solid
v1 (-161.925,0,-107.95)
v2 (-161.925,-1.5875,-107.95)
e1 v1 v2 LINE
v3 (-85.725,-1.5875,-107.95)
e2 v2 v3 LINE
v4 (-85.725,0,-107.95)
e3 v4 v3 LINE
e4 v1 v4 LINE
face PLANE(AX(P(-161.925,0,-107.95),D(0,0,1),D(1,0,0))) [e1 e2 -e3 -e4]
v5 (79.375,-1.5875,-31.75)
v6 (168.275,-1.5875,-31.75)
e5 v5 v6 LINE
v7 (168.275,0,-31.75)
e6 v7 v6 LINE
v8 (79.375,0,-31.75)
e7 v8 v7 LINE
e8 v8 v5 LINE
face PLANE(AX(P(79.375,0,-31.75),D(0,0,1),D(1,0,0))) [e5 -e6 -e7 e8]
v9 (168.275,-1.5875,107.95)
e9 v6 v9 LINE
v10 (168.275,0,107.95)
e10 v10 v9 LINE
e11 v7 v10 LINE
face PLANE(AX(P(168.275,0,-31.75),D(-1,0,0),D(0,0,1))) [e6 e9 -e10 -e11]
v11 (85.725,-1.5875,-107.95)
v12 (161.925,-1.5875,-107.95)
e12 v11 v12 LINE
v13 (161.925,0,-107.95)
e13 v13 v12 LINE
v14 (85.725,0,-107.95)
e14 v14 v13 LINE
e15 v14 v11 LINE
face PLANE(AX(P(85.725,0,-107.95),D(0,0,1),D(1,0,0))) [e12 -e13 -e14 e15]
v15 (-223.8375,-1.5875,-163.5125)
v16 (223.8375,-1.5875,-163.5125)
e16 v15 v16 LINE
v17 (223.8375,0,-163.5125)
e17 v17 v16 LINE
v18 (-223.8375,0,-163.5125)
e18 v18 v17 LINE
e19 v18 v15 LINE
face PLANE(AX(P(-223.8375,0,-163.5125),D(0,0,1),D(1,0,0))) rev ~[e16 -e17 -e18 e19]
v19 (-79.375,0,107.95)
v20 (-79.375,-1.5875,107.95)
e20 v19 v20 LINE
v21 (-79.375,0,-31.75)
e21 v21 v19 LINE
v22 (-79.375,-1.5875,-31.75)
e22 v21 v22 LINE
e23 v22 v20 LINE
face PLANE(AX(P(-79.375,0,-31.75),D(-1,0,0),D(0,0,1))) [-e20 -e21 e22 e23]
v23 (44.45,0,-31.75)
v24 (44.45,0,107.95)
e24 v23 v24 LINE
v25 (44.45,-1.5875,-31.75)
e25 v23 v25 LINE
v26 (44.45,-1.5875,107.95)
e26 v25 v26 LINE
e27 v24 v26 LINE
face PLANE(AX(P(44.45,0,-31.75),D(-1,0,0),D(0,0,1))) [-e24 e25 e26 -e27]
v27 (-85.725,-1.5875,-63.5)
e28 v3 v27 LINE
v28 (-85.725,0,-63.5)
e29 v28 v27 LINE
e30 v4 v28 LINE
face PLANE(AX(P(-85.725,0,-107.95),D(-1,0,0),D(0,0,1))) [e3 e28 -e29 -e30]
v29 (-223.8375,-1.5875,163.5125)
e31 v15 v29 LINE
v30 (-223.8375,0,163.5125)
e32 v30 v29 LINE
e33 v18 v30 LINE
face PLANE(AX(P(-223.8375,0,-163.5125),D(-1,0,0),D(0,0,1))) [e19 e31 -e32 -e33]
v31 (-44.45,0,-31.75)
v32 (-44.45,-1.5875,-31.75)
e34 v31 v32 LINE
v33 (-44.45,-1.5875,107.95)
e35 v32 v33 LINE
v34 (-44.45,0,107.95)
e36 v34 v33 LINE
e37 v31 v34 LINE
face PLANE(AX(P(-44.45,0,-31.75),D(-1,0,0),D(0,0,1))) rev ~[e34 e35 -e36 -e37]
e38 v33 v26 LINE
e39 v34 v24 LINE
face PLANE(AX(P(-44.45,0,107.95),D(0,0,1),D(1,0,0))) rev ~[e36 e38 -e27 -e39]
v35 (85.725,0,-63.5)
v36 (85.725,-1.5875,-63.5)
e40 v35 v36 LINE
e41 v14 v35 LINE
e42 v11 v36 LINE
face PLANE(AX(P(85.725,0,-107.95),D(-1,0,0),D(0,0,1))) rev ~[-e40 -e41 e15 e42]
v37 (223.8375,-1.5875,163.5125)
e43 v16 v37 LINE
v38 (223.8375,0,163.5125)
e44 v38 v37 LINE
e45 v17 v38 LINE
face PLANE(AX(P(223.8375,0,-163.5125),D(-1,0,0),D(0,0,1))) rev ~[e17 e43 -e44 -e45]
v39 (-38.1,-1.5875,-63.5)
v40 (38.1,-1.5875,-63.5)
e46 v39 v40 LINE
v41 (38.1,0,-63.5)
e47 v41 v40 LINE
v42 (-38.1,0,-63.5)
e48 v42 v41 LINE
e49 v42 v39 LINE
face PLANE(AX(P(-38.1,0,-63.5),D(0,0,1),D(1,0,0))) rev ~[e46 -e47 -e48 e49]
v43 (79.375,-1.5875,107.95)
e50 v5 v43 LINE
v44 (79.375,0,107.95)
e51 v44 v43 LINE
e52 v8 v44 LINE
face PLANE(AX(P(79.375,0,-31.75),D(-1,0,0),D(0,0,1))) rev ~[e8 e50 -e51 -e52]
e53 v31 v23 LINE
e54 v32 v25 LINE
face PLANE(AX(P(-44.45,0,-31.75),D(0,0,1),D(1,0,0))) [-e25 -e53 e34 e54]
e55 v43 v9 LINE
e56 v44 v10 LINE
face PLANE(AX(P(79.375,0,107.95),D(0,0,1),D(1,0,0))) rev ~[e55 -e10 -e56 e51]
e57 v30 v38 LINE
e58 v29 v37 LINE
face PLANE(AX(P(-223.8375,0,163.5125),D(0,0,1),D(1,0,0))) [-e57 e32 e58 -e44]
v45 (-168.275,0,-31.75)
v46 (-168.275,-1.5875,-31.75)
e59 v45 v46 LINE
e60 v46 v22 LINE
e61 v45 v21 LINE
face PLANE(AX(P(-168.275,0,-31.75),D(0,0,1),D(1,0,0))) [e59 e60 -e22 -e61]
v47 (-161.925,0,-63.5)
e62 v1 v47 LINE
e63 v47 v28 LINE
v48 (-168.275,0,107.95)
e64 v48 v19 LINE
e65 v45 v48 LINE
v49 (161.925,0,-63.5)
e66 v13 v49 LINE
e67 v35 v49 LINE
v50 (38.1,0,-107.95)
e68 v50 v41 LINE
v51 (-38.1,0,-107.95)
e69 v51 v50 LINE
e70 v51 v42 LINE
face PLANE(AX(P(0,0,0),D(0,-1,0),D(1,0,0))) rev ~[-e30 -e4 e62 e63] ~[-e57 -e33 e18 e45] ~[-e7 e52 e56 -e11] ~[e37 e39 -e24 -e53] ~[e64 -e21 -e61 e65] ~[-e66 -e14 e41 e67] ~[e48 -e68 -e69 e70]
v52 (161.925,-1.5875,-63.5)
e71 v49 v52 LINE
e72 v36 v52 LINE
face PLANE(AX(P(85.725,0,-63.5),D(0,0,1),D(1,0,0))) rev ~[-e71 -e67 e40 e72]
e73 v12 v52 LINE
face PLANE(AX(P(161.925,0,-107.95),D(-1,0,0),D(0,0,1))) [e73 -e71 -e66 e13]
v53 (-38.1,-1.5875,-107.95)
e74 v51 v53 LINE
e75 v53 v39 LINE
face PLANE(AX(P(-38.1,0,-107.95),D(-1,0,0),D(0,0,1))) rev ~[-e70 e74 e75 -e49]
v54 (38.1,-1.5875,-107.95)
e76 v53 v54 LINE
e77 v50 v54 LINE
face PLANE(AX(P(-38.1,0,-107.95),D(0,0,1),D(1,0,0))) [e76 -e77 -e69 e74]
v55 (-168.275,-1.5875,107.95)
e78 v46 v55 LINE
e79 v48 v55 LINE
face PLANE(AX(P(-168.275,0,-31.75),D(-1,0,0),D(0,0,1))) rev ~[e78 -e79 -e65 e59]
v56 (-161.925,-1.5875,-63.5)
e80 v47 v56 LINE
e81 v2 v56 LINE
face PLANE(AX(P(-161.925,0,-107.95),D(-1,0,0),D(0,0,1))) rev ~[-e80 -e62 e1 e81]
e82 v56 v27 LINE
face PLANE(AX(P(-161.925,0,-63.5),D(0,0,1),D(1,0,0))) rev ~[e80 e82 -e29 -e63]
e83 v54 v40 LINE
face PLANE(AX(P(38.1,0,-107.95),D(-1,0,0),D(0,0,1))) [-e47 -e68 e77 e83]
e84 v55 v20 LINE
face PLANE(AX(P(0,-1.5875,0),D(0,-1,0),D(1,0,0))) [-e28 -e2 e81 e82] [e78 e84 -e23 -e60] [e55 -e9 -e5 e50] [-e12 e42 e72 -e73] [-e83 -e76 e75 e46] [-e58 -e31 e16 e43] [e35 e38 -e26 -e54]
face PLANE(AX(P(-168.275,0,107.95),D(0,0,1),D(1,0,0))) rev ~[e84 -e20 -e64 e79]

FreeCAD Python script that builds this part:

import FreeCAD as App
import Part
import Sketcher
Q = App.Units.Quantity

doc = App.newDocument("Part")
body = doc.addObject("PartDesign::Body", "Body")

# Sketch on XZ plane
sketch1 = body.newObject("Sketcher::SketchObject", "Sketch")
sketch1.AttachmentSupport = (doc.getObject("XZ_Plane"), [""])
sketch1.MapMode = "FlatFace"
sketch1.addGeometry(Part.LineSegment(App.Vector(-223.8375, 163.5125, 0), App.Vector(-223.8375, -163.5125, 0)), False)
sketch1.addGeometry(Part.LineSegment(App.Vector(-223.8375, -163.5125, 0), App.Vector(223.8375, -163.5125, 0)), False)
sketch1.addGeometry(Part.LineSegment(App.Vector(223.8375, -163.5125, 0), App.Vector(223.8375, 163.5125, 0)), False)
sketch1.addGeometry(Part.LineSegment(App.Vector(223.8375, 163.5125, 0), App.Vector(-223.8375, 163.5125, 0)), False)
sketch1.addGeometry(Part.LineSegment(App.Vector(-85.725, -107.95, 0), App.Vector(-161.925, -107.95, 0)), False)
sketch1.addGeometry(Part.LineSegment(App.Vector(-161.925, -107.95, 0), App.Vector(-161.925, -63.5, 0)), False)
sketch1.addGeometry(Part.LineSegment(App.Vector(-161.925, -63.5, 0), App.Vector(-85.725, -63.5, 0)), False)
sketch1.addGeometry(Part.LineSegment(App.Vector(-85.725, -63.5, 0), App.Vector(-85.725, -107.95, 0)), False)
sketch1.addGeometry(Part.LineSegment(App.Vector(38.1, -107.95, 0), App.Vector(-38.1, -107.95, 0)), False)
sketch1.addGeometry(Part.LineSegment(App.Vector(-38.1, -107.95, 0), App.Vector(-38.1, -63.5, 0)), False)
sketch1.addGeometry(Part.LineSegment(App.Vector(-38.1, -63.5, 0), App.Vector(38.1, -63.5, 0)), False)
sketch1.addGeometry(Part.LineSegment(App.Vector(38.1, -63.5, 0), App.Vector(38.1, -107.95, 0)), False)
sketch1.addGeometry(Part.LineSegment(App.Vector(161.925, -107.95, 0), App.Vector(85.725, -107.95, 0)), False)
sketch1.addGeometry(Part.LineSegment(App.Vector(85.725, -107.95, 0), App.Vector(85.725, -63.5, 0)), False)
sketch1.addGeometry(Part.LineSegment(App.Vector(85.725, -63.5, 0), App.Vector(161.925, -63.5, 0)), False)
sketch1.addGeometry(Part.LineSegment(App.Vector(161.925, -63.5, 0), App.Vector(161.925, -107.95, 0)), False)
sketch1.addGeometry(Part.LineSegment(App.Vector(-79.375, -31.75, 0), App.Vector(-168.275, -31.75, 0)), False)
sketch1.addGeometry(Part.LineSegment(App.Vector(-168.275, -31.75, 0), App.Vector(-168.275, 107.95, 0)), False)
sketch1.addGeometry(Part.LineSegment(App.Vector(-168.275, 107.95, 0), App.Vector(-79.375, 107.95, 0)), False)
sketch1.addGeometry(Part.LineSegment(App.Vector(-79.375, 107.95, 0), App.Vector(-79.375, -31.75, 0)), False)
sketch1.addGeometry(Part.LineSegment(App.Vector(44.45, -31.75, 0), App.Vector(-44.45, -31.75, 0)), False)
sketch1.addGeometry(Part.LineSegment(App.Vector(-44.45, -31.75, 0), App.Vector(-44.45, 107.95, 0)), False)
sketch1.addGeometry(Part.LineSegment(App.Vector(-44.45, 107.95, 0), App.Vector(44.45, 107.95, 0)), False)
sketch1.addGeometry(Part.LineSegment(App.Vector(44.45, 107.95, 0), App.Vector(44.45, -31.75, 0)), False)
sketch1.addGeometry(Part.LineSegment(App.Vector(168.275, -31.75, 0), App.Vector(79.375, -31.75, 0)), False)
sketch1.addGeometry(Part.LineSegment(App.Vector(79.375, -31.75, 0), App.Vector(79.375, 107.95, 0)), False)
sketch1.addGeometry(Part.LineSegment(App.Vector(79.375, 107.95, 0), App.Vector(168.275, 107.95, 0)), False)
sketch1.addGeometry(Part.LineSegment(App.Vector(168.275, 107.95, 0), App.Vector(168.275, -31.75, 0)), False)
sketch1.addConstraint(Sketcher.Constraint("Coincident", 0, 2, 1, 1))
sketch1.addConstraint(Sketcher.Constraint("Coincident", 1, 2, 2, 1))
sketch1.addConstraint(Sketcher.Constraint("Coincident", 2, 2, 3, 1))
sketch1.addConstraint(Sketcher.Constraint("Coincident", 3, 2, 0, 1))
sketch1.addConstraint(Sketcher.Constraint("Coincident", 4, 2, 5, 1))
sketch1.addConstraint(Sketcher.Constraint("Coincident", 5, 2, 6, 1))
sketch1.addConstraint(Sketcher.Constraint("Coincident", 6, 2, 7, 1))
sketch1.addConstraint(Sketcher.Constraint("Coincident", 7, 2, 4, 1))
sketch1.addConstraint(Sketcher.Constraint("Coincident", 8, 2, 9, 1))
sketch1.addConstraint(Sketcher.Constraint("Coincident", 9, 2, 10, 1))
sketch1.addConstraint(Sketcher.Constraint("Coincident", 10, 2, 11, 1))
sketch1.addConstraint(Sketcher.Constraint("Coincident", 11, 2, 8, 1))
sketch1.addConstraint(Sketcher.Constraint("Coincident", 12, 2, 13, 1))
sketch1.addConstraint(Sketcher.Constraint("Coincident", 13, 2, 14, 1))
sketch1.addConstraint(Sketcher.Constraint("Coincident", 14, 2, 15, 1))
sketch1.addConstraint(Sketcher.Constraint("Coincident", 15, 2, 12, 1))
sketch1.addConstraint(Sketcher.Constraint("Coincident", 16, 2, 17, 1))
sketch1.addConstraint(Sketcher.Constraint("Coincident", 17, 2, 18, 1))
sketch1.addConstraint(Sketcher.Constraint("Coincident", 18, 2, 19, 1))
sketch1.addConstraint(Sketcher.Constraint("Coincident", 19, 2, 16, 1))
sketch1.addConstraint(Sketcher.Constraint("Coincident", 20, 2, 21, 1))
sketch1.addConstraint(Sketcher.Constraint("Coincident", 21, 2, 22, 1))
sketch1.addConstraint(Sketcher.Constraint("Coincident", 22, 2, 23, 1))
sketch1.addConstraint(Sketcher.Constraint("Coincident", 23, 2, 20, 1))
sketch1.addConstraint(Sketcher.Constraint("Coincident", 24, 2, 25, 1))
sketch1.addConstraint(Sketcher.Constraint("Coincident", 25, 2, 26, 1))
sketch1.addConstraint(Sketcher.Constraint("Coincident", 26, 2, 27, 1))
sketch1.addConstraint(Sketcher.Constraint("Coincident", 27, 2, 24, 1))
sketch1.addConstraint(Sketcher.Constraint("Vertical", 0))
sketch1.addConstraint(Sketcher.Constraint("Horizontal", 1))
sketch1.addConstraint(Sketcher.Constraint("Vertical", 2))
sketch1.addConstraint(Sketcher.Constraint("Horizontal", 3))
sketch1.addConstraint(Sketcher.Constraint("Horizontal", 4))
sketch1.addConstraint(Sketcher.Constraint("Vertical", 5))
sketch1.addConstraint(Sketcher.Constraint("Horizontal", 6))
sketch1.addConstraint(Sketcher.Constraint("Vertical", 7))
sketch1.addConstraint(Sketcher.Constraint("Horizontal", 8))
sketch1.addConstraint(Sketcher.Constraint("Vertical", 9))
sketch1.addConstraint(Sketcher.Constraint("Horizontal", 10))
sketch1.addConstraint(Sketcher.Constraint("Vertical", 11))
sketch1.addConstraint(Sketcher.Constraint("Horizontal", 12))
sketch1.addConstraint(Sketcher.Constraint("Vertical", 13))
sketch1.addConstraint(Sketcher.Constraint("Horizontal", 14))
sketch1.addConstraint(Sketcher.Constraint("Vertical", 15))
sketch1.addConstraint(Sketcher.Constraint("Horizontal", 16))
sketch1.addConstraint(Sketcher.Constraint("Vertical", 17))
sketch1.addConstraint(Sketcher.Constraint("Horizontal", 18))
sketch1.addConstraint(Sketcher.Constraint("Vertical", 19))
sketch1.addConstraint(Sketcher.Constraint("Horizontal", 20))
sketch1.addConstraint(Sketcher.Constraint("Vertical", 21))
sketch1.addConstraint(Sketcher.Constraint("Horizontal", 22))
sketch1.addConstraint(Sketcher.Constraint("Vertical", 23))
sketch1.addConstraint(Sketcher.Constraint("Horizontal", 24))
sketch1.addConstraint(Sketcher.Constraint("Vertical", 25))
sketch1.addConstraint(Sketcher.Constraint("Horizontal", 26))
sketch1.addConstraint(Sketcher.Constraint("Vertical", 27))
sketch1.addConstraint(Sketcher.Constraint("Symmetric", 0, 2, 2, 2, -1, 1))
sketch1.addConstraint(Sketcher.Constraint("Symmetric", 7, 2, 12, 2, -2))
sketch1.addConstraint(Sketcher.Constraint("Symmetric", 5, 2, 14, 2, -2))
sketch1.addConstraint(Sketcher.Constraint("Symmetric", 19, 2, 24, 2, -2))
sketch1.addConstraint(Sketcher.Constraint("Symmetric", 17, 2, 26, 2, -2))
sketch1.addConstraint(Sketcher.Constraint("Horizontal", 7, 2, 8, 2))
sketch1.addConstraint(Sketcher.Constraint("Horizontal", 6, 2, 9, 2))
sketch1.addConstraint(Sketcher.Constraint("Horizontal", 19, 2, 20, 2))
sketch1.addConstraint(Sketcher.Constraint("Horizontal", 18, 2, 21, 2))
sketch1.addConstraint(Sketcher.Constraint("Equal", 6, 8))
sketch1.addConstraint(Sketcher.Constraint("Equal", 18, 20))
sketch1.addConstraint(Sketcher.Constraint("DistanceX", 4, 2, 4, 1, Q("3 in")))
sketch1.addConstraint(Sketcher.Constraint("DistanceX", 16, 2, 16, 1, Q("3.5 in")))
sketch1.addConstraint(Sketcher.Constraint("DistanceY", 17, 1, 17, 2, Q("5.5 in")))
sketch1.addConstraint(Sketcher.Constraint("DistanceY", 4, 2, 16, 2, Q("3 in")))
sketch1.addConstraint(Sketcher.Constraint("DistanceY", 5, 1, 5, 2, Q("1.75 in")))
sketch1.addConstraint(Sketcher.Constraint("DistanceY", 5, 2, -1, 1, Q("2.5 in")))
sketch1.addConstraint(Sketcher.Constraint("DistanceX", 8, 2, -1, 1, Q("1.5 in")))
sketch1.addConstraint(Sketcher.Constraint("DistanceX", 1, 1, 1, 2, Q("17.625 in")))
sketch1.addConstraint(Sketcher.Constraint("DistanceY", 0, 2, 0, 1, Q("12.875 in")))
sketch1.addConstraint(Sketcher.Constraint("DistanceX", 20, 2, -1, 1, Q("1.75 in")))
sketch1.addConstraint(Sketcher.Constraint("DistanceX", 16, 2, 5, 2, Q("0.25 in")))
sketch1.addConstraint(Sketcher.Constraint("DistanceX", 4, 2, -1, 1, Q("6.375 in")))
pad1 = body.newObject("PartDesign::Pad", "Pad")
pad1.Profile = sketch1
pad1.Length = Q("0.0625 in")

doc.recompute()
